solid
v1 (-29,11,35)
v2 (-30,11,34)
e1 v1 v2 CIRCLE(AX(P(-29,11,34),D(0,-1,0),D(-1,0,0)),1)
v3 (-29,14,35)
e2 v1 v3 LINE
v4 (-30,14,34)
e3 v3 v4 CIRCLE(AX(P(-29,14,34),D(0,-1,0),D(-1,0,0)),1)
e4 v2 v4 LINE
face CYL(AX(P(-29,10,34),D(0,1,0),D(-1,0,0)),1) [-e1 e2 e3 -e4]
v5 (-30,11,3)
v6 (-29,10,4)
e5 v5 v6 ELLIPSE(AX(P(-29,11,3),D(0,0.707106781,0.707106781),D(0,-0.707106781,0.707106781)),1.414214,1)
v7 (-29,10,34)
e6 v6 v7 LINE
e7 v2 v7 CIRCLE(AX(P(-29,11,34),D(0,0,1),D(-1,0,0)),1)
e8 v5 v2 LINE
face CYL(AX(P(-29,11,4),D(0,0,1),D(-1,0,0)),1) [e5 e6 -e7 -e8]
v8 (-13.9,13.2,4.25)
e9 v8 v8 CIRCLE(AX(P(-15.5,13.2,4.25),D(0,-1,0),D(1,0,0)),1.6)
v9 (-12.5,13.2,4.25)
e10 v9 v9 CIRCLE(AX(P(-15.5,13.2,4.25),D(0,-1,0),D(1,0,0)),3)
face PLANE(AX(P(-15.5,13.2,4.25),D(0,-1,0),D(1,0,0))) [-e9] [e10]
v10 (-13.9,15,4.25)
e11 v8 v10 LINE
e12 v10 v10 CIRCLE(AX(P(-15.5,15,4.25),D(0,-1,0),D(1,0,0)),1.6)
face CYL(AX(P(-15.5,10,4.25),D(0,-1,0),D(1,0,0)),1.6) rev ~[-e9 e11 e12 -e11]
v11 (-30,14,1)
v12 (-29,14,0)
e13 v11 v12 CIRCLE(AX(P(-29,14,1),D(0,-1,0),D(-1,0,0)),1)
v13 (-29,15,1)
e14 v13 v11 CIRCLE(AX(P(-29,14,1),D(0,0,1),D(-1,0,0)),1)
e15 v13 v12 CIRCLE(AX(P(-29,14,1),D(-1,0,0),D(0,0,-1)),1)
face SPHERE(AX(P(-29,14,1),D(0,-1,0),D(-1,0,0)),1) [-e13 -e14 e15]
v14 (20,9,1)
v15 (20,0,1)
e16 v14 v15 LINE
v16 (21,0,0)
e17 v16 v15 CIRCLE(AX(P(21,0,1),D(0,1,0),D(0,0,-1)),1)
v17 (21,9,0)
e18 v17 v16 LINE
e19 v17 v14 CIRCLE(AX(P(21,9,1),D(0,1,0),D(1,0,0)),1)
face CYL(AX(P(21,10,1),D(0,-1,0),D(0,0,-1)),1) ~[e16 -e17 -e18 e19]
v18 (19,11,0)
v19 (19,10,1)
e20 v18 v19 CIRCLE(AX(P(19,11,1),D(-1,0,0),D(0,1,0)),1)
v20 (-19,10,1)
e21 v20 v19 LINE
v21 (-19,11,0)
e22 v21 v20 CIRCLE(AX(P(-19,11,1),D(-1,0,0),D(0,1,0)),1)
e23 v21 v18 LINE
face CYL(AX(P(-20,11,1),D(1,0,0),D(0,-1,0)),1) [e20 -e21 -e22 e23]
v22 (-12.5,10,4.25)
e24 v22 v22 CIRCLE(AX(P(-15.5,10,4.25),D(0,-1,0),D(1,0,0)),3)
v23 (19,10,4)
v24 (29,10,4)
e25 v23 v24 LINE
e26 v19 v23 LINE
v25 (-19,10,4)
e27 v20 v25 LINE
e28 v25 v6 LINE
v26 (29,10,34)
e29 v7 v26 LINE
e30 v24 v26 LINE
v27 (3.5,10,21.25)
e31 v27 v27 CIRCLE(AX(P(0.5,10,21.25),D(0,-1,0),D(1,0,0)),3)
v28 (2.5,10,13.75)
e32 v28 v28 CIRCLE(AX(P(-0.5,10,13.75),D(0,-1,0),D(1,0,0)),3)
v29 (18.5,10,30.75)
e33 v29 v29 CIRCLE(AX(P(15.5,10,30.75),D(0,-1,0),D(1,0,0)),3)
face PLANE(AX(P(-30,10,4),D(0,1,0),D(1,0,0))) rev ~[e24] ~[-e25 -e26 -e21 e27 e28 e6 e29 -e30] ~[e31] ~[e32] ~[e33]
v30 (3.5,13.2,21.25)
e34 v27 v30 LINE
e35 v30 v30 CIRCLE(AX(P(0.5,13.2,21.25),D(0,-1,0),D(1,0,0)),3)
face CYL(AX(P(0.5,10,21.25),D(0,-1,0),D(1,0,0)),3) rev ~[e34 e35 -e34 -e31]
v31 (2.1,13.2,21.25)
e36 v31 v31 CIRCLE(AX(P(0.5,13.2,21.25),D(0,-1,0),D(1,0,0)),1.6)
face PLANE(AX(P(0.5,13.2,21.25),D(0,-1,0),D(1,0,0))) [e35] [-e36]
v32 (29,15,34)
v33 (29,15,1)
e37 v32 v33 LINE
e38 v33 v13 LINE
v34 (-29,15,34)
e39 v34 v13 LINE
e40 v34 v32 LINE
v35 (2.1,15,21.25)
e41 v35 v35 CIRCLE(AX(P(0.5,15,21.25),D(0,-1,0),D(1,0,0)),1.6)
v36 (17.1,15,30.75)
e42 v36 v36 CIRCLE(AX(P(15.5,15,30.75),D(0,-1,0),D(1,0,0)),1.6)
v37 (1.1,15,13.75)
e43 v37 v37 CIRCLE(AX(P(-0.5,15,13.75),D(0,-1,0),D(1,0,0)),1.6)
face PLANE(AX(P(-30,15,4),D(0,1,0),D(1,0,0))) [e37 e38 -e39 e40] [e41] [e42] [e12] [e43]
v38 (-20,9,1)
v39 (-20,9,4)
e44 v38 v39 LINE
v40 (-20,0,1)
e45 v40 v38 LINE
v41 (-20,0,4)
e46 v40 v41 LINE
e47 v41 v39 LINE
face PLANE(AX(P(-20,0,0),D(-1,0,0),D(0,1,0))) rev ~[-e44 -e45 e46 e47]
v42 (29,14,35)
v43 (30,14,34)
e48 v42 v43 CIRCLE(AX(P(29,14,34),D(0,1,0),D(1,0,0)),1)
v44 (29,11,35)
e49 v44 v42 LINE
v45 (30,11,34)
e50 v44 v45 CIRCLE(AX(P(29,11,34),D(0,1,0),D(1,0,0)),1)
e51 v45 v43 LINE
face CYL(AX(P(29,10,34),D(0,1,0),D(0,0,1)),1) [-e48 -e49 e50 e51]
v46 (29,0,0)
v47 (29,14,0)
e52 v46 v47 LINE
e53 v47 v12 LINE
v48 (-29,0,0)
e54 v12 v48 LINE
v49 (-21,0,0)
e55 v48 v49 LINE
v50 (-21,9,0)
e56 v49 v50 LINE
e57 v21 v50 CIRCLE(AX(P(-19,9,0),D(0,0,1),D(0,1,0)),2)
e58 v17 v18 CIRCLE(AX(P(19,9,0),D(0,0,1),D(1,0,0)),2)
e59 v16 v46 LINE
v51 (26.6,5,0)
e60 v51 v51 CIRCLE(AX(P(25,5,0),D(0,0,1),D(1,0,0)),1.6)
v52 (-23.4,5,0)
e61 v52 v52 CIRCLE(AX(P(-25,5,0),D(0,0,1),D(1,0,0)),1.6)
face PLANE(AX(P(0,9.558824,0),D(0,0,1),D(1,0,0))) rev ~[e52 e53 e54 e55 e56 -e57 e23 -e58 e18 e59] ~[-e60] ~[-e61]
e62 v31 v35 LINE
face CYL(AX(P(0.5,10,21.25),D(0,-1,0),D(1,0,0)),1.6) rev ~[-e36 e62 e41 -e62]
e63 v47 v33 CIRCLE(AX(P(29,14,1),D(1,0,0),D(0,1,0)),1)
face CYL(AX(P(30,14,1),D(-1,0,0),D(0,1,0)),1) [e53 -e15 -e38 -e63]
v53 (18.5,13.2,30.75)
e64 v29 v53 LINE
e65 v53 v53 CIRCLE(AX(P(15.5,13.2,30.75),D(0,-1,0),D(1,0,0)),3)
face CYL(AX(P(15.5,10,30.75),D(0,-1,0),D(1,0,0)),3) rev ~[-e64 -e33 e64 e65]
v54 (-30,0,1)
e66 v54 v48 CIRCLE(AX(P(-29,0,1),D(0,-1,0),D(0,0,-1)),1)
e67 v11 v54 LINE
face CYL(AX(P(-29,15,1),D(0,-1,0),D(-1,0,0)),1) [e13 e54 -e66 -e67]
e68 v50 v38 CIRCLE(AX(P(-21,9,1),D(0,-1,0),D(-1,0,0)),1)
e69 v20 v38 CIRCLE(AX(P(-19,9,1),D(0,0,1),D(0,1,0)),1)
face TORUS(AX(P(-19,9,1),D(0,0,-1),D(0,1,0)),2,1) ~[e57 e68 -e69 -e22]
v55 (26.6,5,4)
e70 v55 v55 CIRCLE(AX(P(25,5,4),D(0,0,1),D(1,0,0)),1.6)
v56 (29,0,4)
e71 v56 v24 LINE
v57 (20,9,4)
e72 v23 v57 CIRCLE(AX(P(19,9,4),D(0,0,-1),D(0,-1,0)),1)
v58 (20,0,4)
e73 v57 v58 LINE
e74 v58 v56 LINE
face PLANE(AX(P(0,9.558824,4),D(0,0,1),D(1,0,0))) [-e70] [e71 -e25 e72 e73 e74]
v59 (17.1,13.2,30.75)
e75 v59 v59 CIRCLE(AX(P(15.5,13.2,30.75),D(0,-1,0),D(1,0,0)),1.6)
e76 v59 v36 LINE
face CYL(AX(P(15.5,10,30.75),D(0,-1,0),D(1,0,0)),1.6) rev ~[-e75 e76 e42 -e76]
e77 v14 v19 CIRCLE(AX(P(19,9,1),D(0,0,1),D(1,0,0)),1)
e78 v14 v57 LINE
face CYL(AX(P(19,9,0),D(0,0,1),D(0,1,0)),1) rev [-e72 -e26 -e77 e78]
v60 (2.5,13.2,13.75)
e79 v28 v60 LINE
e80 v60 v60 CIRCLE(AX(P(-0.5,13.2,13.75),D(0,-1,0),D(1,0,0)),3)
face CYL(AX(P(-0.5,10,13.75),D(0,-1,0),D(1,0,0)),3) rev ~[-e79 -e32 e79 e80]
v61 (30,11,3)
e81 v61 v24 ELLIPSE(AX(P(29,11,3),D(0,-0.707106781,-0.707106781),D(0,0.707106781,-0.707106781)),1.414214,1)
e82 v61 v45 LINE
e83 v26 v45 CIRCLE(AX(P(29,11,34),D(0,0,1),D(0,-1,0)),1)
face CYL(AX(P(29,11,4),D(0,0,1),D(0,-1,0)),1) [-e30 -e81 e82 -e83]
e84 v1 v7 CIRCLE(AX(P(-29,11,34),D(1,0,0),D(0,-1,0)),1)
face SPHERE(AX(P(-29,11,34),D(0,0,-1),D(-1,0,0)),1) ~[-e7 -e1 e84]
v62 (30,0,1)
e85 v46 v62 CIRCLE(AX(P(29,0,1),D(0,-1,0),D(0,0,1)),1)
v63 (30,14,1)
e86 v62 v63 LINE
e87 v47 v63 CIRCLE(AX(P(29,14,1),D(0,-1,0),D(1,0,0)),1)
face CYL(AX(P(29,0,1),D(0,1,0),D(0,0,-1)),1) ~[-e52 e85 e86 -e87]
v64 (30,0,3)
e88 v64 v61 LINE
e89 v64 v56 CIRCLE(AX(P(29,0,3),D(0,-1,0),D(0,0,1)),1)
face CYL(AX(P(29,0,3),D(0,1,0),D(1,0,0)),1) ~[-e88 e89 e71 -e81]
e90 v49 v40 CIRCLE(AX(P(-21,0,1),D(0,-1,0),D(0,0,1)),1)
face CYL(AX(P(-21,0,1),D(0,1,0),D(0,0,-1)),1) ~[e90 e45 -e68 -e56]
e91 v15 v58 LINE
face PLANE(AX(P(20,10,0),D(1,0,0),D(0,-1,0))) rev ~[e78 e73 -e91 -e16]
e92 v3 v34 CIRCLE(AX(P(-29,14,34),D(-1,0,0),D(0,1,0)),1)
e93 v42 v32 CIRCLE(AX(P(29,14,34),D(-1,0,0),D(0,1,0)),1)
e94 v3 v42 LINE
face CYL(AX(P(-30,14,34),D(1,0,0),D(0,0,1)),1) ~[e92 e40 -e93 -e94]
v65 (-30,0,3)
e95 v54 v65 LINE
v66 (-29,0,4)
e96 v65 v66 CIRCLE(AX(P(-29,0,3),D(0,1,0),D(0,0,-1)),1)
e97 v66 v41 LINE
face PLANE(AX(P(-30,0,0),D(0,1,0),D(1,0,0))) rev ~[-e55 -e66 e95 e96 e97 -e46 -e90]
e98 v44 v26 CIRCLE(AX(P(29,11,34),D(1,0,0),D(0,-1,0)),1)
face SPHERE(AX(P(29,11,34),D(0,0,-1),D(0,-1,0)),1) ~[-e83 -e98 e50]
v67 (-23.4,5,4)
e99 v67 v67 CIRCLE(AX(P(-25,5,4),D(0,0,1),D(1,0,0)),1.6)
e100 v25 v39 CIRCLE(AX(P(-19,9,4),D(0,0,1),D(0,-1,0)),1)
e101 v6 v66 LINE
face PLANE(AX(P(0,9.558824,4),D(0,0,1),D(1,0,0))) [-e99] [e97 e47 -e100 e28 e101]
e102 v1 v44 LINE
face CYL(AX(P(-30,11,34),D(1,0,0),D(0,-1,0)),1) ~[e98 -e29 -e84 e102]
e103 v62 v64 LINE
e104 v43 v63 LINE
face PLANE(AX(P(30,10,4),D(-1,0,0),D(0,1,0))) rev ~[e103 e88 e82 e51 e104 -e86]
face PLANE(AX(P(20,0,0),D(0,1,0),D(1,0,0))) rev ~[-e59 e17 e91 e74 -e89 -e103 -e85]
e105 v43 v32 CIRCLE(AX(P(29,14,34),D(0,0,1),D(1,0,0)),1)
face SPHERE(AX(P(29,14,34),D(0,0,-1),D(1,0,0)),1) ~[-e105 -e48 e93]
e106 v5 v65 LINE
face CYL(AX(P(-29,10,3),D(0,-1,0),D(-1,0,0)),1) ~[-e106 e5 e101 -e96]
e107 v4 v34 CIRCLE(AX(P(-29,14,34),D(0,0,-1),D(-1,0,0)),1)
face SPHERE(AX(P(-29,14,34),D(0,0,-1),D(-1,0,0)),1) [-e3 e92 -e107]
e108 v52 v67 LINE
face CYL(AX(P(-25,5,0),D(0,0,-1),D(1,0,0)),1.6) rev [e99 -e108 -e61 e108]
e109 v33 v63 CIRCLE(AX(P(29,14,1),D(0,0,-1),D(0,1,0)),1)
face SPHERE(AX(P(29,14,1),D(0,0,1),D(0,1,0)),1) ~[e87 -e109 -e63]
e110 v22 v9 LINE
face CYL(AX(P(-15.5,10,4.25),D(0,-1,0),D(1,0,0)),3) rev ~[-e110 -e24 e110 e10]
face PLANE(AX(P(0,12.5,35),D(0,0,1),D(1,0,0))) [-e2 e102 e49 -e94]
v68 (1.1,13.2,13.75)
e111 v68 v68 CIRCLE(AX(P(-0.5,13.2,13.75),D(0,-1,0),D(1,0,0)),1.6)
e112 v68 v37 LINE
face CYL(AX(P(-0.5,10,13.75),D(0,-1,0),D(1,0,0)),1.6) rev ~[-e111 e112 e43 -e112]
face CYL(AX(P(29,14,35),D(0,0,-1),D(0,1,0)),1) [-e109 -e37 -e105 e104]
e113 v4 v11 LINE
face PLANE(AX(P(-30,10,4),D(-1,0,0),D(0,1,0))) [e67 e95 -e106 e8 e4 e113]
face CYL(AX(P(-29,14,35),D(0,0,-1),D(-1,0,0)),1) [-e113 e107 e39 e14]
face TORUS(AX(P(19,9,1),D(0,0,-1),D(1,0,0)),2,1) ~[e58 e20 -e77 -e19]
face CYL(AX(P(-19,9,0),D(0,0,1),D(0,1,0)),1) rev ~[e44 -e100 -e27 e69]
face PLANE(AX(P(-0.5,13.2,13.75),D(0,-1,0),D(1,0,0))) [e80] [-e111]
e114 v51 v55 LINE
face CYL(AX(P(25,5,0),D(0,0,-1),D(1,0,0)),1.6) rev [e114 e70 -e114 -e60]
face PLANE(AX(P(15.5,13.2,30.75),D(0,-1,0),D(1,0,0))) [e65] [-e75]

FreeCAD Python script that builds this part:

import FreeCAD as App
import Part
import Sketcher


def edges_at(feature, points):
    """Names of the edges that pass closest to the given points."""
    edges = feature.Shape.Edges
    near = lambda p: min(range(len(edges)), key=lambda i: edges[i].distToShape(Part.Vertex(*p))[0])
    return sorted({f"Edge{near(p) + 1}" for p in points})


def add_polygon(sketch, points):
    """Adds a closed chain of lines whose ends are joined by coincident constraints."""
    first, n = sketch.GeometryCount, len(points)
    for a, b in zip(points, points[1:] + points[:1]):
        sketch.addGeometry(Part.LineSegment(App.Vector(*a, 0), App.Vector(*b, 0)), False)
    for i in range(n):
        sketch.addConstraint(Sketcher.Constraint("Coincident", first + i, 2, first + (i + 1) % n, 1))

doc = App.newDocument("Part")
params = doc.addObject("Spreadsheet::Sheet", "Params")
for row, (alias, value) in enumerate([
    ("sketch1_diameter", "3.2 mm"),
    ("sketch1_width", "10 mm"),
    ("sketch1_width2", "60 mm"),
    ("sketch1_height", "15 mm"),
    ("pad1_length", "4 mm"),
    ("sketch2_width", "60 mm"),
    ("sketch2_height", "5 mm"),
    ("pad2_length", "31 mm"),
    ("sketch3_diameter", "3.2 mm"),
    ("sketch4_diameter", "6 mm"),
    ("pocket2_length", "3.2 mm"),
    ("fillet_radius", "1 mm"),
], start=1):
    params.set(f"A{row}", alias)
    params.set(f"B{row}", "=" + value)
    params.setAlias(f"B{row}", alias)

body = doc.addObject("PartDesign::Body", "Body")

# Sketch on XY plane
sketch1 = body.newObject("Sketcher::SketchObject", "Sketch")
sketch1.AttachmentSupport = (doc.getObject("XY_Plane"), [""])
sketch1.MapMode = "FlatFace"
add_polygon(sketch1, [(20, 0), (30, 0), (30, 15), (-30, 15), (-30, 0), (-20, 0), (-20, 10), (20, 10)])  # lines 0-7
sketch1.addGeometry(Part.Circle(App.Vector(-25, 5, 0), App.Vector(0, 0, 1), 1.6), False)  # 8
sketch1.addGeometry(Part.Circle(App.Vector(25, 5, 0), App.Vector(0, 0, 1), 1.6), False)  # 9
sketch1.addConstraint([
    Sketcher.Constraint("Horizontal", 0),
    Sketcher.Constraint("Vertical", 1),
    Sketcher.Constraint("Horizontal", 2),
    Sketcher.Constraint("Vertical", 3),
    Sketcher.Constraint("Horizontal", 4),
    Sketcher.Constraint("Vertical", 5),
    Sketcher.Constraint("Horizontal", 6),
    Sketcher.Constraint("Vertical", 7),
    Sketcher.Constraint("Equal", 8, 9),
    Sketcher.Constraint("Symmetric", 0, 2, 3, 2, -1, 1),
    Sketcher.Constraint("Symmetric", 8, 3, 9, 3, -2),
    Sketcher.Constraint("Symmetric", 4, 2, 7, 2, -2),
    Sketcher.Constraint("Equal", 4, 5),
    Sketcher.Constraint("Diameter", 8, 3.2),
    Sketcher.Constraint("DistanceX", 0, 1, 0, 2, 10.0),
    Sketcher.Constraint("DistanceX", 2, 2, 2, 1, 60.0),
    Sketcher.Constraint("DistanceY", 1, 1, 1, 2, 15.0),
    Sketcher.Constraint("DistanceX", 8, 3, -1, 1, 25.0),
    Sketcher.Constraint("DistanceY", -1, 1, 8, 3, 5.0),
])
sketch1.setExpression("Constraints[21]", "Params.sketch1_diameter")
sketch1.setExpression("Constraints[22]", "Params.sketch1_width")
sketch1.setExpression("Constraints[23]", "Params.sketch1_width2")
sketch1.setExpression("Constraints[24]", "Params.sketch1_height")
pad1 = body.newObject("PartDesign::Pad", "Pad")
pad1.Profile = sketch1
pad1.setExpression("Length", "Params.pad1_length")

# Sketch on XY plane
sketch2 = body.newObject("Sketcher::SketchObject", "Sketch001")
sketch2.AttachmentSupport = (doc.getObject("XY_Plane"), [""])
sketch2.MapMode = "FlatFace"
sketch2.AttachmentOffset = App.Placement(App.Vector(0, 0, 4), App.Rotation())
add_polygon(sketch2, [(-30, 15), (-30, 10), (30, 10), (30, 15)])  # lines 0-3
sketch2.addConstraint([
    Sketcher.Constraint("Vertical", 0),
    Sketcher.Constraint("Horizontal", 1),
    Sketcher.Constraint("Vertical", 2),
    Sketcher.Constraint("Horizontal", 3),
    Sketcher.Constraint("DistanceX", 1, 1, 1, 2, 60.0),
    Sketcher.Constraint("DistanceY", 0, 2, 0, 1, 5.0),
    Sketcher.Constraint("DistanceX", 0, 2, -1, 1, 30.0),
    Sketcher.Constraint("DistanceY", -1, 1, 0, 2, 10.0),
])
sketch2.setExpression("Constraints[8]", "Params.sketch2_width")
sketch2.setExpression("Constraints[9]", "Params.sketch2_height")
pad2 = body.newObject("PartDesign::Pad", "Pad001")
pad2.Profile = sketch2
pad2.setExpression("Length", "Params.pad2_length")

# Sketch on XZ plane
sketch3 = body.newObject("Sketcher::SketchObject", "Sketch002")
sketch3.AttachmentSupport = (doc.getObject("XZ_Plane"), [""])
sketch3.MapMode = "FlatFace"
sketch3.AttachmentOffset = App.Placement(App.Vector(0, 0, -10), App.Rotation())
sketch3.addGeometry([
    Part.Circle(App.Vector(-15.5, 4.2, 0), App.Vector(0, 0, 1), 1.6),
    Part.Circle(App.Vector(-0.5, 13.8, 0), App.Vector(0, 0, 1), 1.6),
    Part.Circle(App.Vector(0.5, 21.2, 0), App.Vector(0, 0, 1), 1.6),
    Part.Circle(App.Vector(15.5, 30.8, 0), App.Vector(0, 0, 1), 1.6),
], False)
sketch3.addConstraint([
    Sketcher.Constraint("Equal", 0, 1),
    Sketcher.Constraint("Equal", 1, 2),
    Sketcher.Constraint("Equal", 2, 3),
    Sketcher.Constraint("Diameter", 0, 3.2),
    Sketcher.Constraint("DistanceX", 0, 3, 1, 3, 15.0),
    Sketcher.Constraint("DistanceX", 1, 3, 2, 3, 1.0),
    Sketcher.Constraint("DistanceY", 0, 3, 2, 3, 17.0),
    Sketcher.Constraint("DistanceX", 2, 3, 3, 3, 15.0),
    Sketcher.Constraint("DistanceY", 1, 3, 3, 3, 17.0),
    Sketcher.Constraint("DistanceX", 0, 3, -1, 1, 15.5),
    Sketcher.Constraint("DistanceY", 0, 3, 1, 3, 9.5),
    Sketcher.Constraint("DistanceY", -1, 1, 0, 3, 4.25),
])
sketch3.setExpression("Constraints[3]", "Params.sketch3_diameter")
pocket1 = body.newObject("PartDesign::Pocket", "Pocket")
pocket1.Profile = sketch3
pocket1.Type = "ThroughAll"

# Sketch on XZ plane
sketch4 = body.newObject("Sketcher::SketchObject", "Sketch003")
sketch4.AttachmentSupport = (doc.getObject("XZ_Plane"), [""])
sketch4.MapMode = "FlatFace"
sketch4.AttachmentOffset = App.Placement(App.Vector(0, 0, -10), App.Rotation())
sketch4.addGeometry([
    Part.Circle(App.Vector(-15.5, 4.2, 0), App.Vector(0, 0, 1), 3),
    Part.Circle(App.Vector(-0.5, 13.8, 0), App.Vector(0, 0, 1), 3),
    Part.Circle(App.Vector(0.5, 21.2, 0), App.Vector(0, 0, 1), 3),
    Part.Circle(App.Vector(15.5, 30.8, 0), App.Vector(0, 0, 1), 3),
], False)
sketch4.addConstraint([
    Sketcher.Constraint("Equal", 0, 1),
    Sketcher.Constraint("Equal", 1, 2),
    Sketcher.Constraint("Equal", 2, 3),
    Sketcher.Constraint("Diameter", 0, 6.0),
    Sketcher.Constraint("DistanceX", 0, 3, 1, 3, 15.0),
    Sketcher.Constraint("DistanceX", 1, 3, 2, 3, 1.0),
    Sketcher.Constraint("DistanceY", 0, 3, 2, 3, 17.0),
    Sketcher.Constraint("DistanceX", 2, 3, 3, 3, 15.0),
    Sketcher.Constraint("DistanceY", 1, 3, 3, 3, 17.0),
    Sketcher.Constraint("DistanceX", 0, 3, -1, 1, 15.5),
    Sketcher.Constraint("DistanceY", 0, 3, 1, 3, 9.5),
    Sketcher.Constraint("DistanceY", -1, 1, 0, 3, 4.25),
])
sketch4.setExpression("Constraints[3]", "Params.sketch4_diameter")
pocket2 = body.newObject("PartDesign::Pocket", "Pocket001")
pocket2.Profile = sketch4
pocket2.setExpression("Length", "Params.pocket2_length")
doc.recompute()

fillet = body.newObject("PartDesign::Fillet", "Fillet")
fillet.Base = (pocket2, edges_at(pocket2, [
    (0, 10, 0),
    (-20, 5, 0),
    (-30, 7.5, 0),
    (-30, 15, 17.5),
    (30, 15, 17.5),
    (20, 10, 2),
    (-20, 10, 2),
    (30, 5, 4),
    (-30, 5, 4),
    (-30, 10, 19.5),
    (30, 10, 19.5),
    (-30, 12.5, 35),
    (0, 10, 35),
    (30, 12.5, 35),
    (0, 15, 35),
    (0, 15, 0),
    (30, 7.5, 0),
    (20, 5, 0),
]))
fillet.setExpression("Radius", "Params.fillet_radius")

doc.recompute()
